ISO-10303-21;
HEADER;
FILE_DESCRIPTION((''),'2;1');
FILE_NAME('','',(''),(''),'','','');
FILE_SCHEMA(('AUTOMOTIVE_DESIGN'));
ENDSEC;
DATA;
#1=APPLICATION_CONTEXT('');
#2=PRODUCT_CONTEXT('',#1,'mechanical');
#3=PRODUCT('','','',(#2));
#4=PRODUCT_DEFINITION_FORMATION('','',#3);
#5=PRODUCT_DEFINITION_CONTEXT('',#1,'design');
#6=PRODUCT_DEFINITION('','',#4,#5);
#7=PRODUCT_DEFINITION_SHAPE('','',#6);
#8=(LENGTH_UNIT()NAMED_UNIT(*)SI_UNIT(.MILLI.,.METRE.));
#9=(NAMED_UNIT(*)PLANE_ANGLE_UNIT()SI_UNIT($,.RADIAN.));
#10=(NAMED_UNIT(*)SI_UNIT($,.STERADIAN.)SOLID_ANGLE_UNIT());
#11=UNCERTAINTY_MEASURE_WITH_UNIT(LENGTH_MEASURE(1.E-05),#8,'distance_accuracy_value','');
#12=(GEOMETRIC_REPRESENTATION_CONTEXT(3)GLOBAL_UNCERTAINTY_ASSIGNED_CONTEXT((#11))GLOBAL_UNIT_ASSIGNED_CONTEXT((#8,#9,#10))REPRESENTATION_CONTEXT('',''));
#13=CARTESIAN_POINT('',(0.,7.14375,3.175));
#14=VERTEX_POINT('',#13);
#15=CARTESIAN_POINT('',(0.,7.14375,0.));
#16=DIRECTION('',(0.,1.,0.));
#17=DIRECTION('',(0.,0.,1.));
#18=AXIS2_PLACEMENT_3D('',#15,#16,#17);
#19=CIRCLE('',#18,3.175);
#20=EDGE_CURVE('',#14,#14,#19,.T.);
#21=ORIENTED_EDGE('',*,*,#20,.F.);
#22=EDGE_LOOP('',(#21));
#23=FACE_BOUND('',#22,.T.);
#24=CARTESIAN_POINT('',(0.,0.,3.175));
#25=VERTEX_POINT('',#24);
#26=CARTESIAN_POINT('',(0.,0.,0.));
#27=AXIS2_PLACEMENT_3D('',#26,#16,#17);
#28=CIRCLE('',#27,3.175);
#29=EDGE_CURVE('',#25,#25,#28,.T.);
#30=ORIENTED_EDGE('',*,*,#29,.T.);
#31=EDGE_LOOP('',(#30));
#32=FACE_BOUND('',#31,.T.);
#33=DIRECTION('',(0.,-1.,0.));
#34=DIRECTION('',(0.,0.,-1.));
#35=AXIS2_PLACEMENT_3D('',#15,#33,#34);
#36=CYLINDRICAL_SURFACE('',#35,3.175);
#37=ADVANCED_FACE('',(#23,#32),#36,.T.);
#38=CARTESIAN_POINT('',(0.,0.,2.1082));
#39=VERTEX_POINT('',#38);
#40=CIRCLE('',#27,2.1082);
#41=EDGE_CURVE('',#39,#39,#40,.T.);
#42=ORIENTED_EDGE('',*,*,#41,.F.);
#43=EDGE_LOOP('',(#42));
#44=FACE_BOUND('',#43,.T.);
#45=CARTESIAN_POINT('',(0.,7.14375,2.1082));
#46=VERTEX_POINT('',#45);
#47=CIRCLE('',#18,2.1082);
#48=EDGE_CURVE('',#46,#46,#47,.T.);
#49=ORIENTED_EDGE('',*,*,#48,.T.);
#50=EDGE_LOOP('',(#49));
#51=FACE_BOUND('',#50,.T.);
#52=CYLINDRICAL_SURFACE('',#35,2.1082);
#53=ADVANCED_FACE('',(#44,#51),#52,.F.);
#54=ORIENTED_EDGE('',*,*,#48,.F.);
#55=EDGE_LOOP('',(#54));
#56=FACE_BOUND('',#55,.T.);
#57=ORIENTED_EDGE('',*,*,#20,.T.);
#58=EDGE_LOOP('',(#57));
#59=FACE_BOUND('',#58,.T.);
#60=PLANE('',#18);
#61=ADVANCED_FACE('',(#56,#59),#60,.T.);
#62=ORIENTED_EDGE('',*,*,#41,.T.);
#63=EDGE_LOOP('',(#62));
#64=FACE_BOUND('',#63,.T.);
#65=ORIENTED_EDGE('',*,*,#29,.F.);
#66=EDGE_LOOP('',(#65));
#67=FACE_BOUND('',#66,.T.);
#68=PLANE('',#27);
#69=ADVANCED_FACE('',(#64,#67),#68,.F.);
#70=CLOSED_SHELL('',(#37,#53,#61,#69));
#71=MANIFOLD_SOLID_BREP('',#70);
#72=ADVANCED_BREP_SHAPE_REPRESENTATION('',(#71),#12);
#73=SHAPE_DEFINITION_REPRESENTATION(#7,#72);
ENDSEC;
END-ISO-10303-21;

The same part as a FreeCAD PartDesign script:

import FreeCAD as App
import Part
import Sketcher
Q = App.Units.Quantity

doc = App.newDocument("Part")
body = doc.addObject("PartDesign::Body", "Body")

# Sketch on XZ plane
sketch1 = body.newObject("Sketcher::SketchObject", "Sketch")
sketch1.AttachmentSupport = (doc.getObject("XZ_Plane"), [""])
sketch1.MapMode = "FlatFace"
sketch1.addGeometry([
    Part.Circle(App.Vector(0, 0, 0), App.Vector(0, 0, 1), 3.175),
    Part.Circle(App.Vector(0, 0, 0), App.Vector(0, 0, 1), 2.1082),
], False)
sketch1.addConstraint([
    Sketcher.Constraint("Coincident", 0, 3, -1, 1),
    Sketcher.Constraint("Coincident", 1, 3, -1, 1),
    Sketcher.Constraint("Diameter", 0, Q("0.25 in")),
    Sketcher.Constraint("Diameter", 1, Q("0.166 in")),
])
pad1 = body.newObject("PartDesign::Pad", "Pad")
pad1.Profile = sketch1
pad1.Length = Q("0.28125 in")
pad1.Reversed = True

doc.recompute()
